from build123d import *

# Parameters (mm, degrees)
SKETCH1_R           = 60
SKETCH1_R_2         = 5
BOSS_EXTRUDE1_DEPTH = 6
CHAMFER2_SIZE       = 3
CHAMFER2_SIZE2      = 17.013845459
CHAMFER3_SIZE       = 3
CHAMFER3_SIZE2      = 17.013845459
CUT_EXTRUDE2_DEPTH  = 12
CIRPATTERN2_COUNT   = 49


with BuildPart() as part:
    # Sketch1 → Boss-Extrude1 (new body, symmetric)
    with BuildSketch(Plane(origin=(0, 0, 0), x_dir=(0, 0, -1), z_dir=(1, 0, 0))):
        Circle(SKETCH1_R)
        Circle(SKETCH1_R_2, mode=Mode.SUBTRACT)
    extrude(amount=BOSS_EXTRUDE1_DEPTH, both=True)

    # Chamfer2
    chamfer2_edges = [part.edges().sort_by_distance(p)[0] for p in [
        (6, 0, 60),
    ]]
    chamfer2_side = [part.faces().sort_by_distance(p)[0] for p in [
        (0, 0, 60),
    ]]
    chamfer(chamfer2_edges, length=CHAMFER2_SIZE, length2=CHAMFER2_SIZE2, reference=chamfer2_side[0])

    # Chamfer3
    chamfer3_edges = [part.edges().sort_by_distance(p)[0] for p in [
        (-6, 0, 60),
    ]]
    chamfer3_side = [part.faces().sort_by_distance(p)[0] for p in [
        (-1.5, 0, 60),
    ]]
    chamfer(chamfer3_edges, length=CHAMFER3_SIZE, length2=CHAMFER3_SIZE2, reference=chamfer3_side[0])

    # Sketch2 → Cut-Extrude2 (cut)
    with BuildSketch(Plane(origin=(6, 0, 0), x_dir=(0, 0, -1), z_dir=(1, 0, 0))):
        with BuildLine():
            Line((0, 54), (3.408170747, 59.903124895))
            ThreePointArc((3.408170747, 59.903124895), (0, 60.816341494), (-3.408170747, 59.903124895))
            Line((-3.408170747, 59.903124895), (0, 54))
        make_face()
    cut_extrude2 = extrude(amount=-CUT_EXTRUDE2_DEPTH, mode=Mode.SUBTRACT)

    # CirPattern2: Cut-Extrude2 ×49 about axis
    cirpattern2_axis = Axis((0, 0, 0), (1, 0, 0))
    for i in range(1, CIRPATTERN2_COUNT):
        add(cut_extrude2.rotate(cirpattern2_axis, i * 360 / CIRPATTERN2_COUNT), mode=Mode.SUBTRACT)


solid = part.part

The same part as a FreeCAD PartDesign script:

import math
import FreeCAD as App
import Part
import Sketcher
from FreeCAD import Vector
Q = App.Units.Quantity


def edges_at(feature, points):
    """Names of the edges that pass closest to the given points."""
    edges = feature.Shape.Edges
    near = lambda p: min(range(len(edges)), key=lambda i: edges[i].distToShape(Part.Vertex(*p))[0])
    return sorted({f"Edge{near(p) + 1}" for p in points})

doc = App.newDocument("Part")
body = doc.addObject("PartDesign::Body", "Body")

sketch1 = doc.addObject("Sketcher::SketchObject", "Sketch")
body.addObject(sketch1)
sketch1.AttachmentSupport = (doc.YZ_Plane, [""])
sketch1.MapMode = "FlatFace"
sketch1.addGeometry(Part.Circle(Vector(0, 0, 0), Vector(0, 0, 1), 60), False)
sketch1.addGeometry(Part.Circle(Vector(0, 0, 0), Vector(0, 0, 1), 5), False)
sketch1.addConstraint(Sketcher.Constraint("Coincident", 0, 3, -1, 1))
sketch1.addConstraint(Sketcher.Constraint("Coincident", 1, 3, -1, 1))
sketch1.addConstraint(Sketcher.Constraint("Diameter", 0, Q("120 mm")))
sketch1.addConstraint(Sketcher.Constraint("Diameter", 1, Q("10 mm")))
pad1 = doc.addObject("PartDesign::Pad", "Pad")
body.addObject(pad1)
pad1.Profile = sketch1
pad1.Length = 12
pad1.Midplane = True
doc.recompute()

chamfer = doc.addObject("PartDesign::Chamfer", "Chamfer")
body.addObject(chamfer)
chamfer.Base = (pad1, edges_at(pad1, [(6, 0, 60)]))
chamfer.ChamferType = "Two distances"
chamfer.Size = 3
chamfer.Size2 = 17.013845
doc.recompute()

chamfer2 = doc.addObject("PartDesign::Chamfer", "Chamfer001")
body.addObject(chamfer2)
chamfer2.Base = (chamfer, edges_at(chamfer, [(-6, 0, 60)]))
chamfer2.ChamferType = "Two distances"
chamfer2.Size = 3
chamfer2.Size2 = 17.013845

sketch2 = doc.addObject("Sketcher::SketchObject", "Sketch001")
body.addObject(sketch2)
sketch2.AttachmentSupport = (doc.YZ_Plane, [""])
sketch2.MapMode = "FlatFace"
sketch2.AttachmentOffset = App.Placement(Vector(0, 0, 6), App.Rotation())
sketch2.addGeometry(Part.LineSegment(Vector(54, 0, 0), Vector(60, -3, 0)), False)
sketch2.addGeometry(Part.ArcOfCircle(Part.Circle(Vector(54, 0, 0), Vector(0, 0, 1), 7), math.radians(-30), math.radians(30)), False)
sketch2.addGeometry(Part.LineSegment(Vector(60, 3, 0), Vector(54, 0, 0)), False)
sketch2.addConstraint(Sketcher.Constraint("Coincident", 0, 2, 1, 1))
sketch2.addConstraint(Sketcher.Constraint("Coincident", 1, 2, 2, 1))
sketch2.addConstraint(Sketcher.Constraint("Coincident", 2, 2, 0, 1))
sketch2.addConstraint(Sketcher.Constraint("Coincident", 2, 2, 1, 3))
sketch2.addConstraint(Sketcher.Constraint("Symmetric", 0, 2, 1, 2, -1))
sketch2.addConstraint(Sketcher.Constraint("Angle", 0, Q("-30 deg")))
sketch2.addConstraint(Sketcher.Constraint("DistanceX", -1, 1, 1, 3, Q("54 mm")))
sketch2.addConstraint(Sketcher.Constraint("Radius", 1, Q("6.816341 mm")))
pocket1 = doc.addObject("PartDesign::Pocket", "Pocket")
body.addObject(pocket1)
pocket1.Profile = sketch2
pocket1.Length = 12
doc.recompute()

polarpattern = doc.addObject("PartDesign::PolarPattern", "PolarPattern")
body.addObject(polarpattern)
polarpattern.Originals = [pocket1]
polarpattern.Axis = (doc.X_Axis, [""])
polarpattern.Angle = 360
polarpattern.Occurrences = 49
body.Tip = polarpattern

doc.recompute()
